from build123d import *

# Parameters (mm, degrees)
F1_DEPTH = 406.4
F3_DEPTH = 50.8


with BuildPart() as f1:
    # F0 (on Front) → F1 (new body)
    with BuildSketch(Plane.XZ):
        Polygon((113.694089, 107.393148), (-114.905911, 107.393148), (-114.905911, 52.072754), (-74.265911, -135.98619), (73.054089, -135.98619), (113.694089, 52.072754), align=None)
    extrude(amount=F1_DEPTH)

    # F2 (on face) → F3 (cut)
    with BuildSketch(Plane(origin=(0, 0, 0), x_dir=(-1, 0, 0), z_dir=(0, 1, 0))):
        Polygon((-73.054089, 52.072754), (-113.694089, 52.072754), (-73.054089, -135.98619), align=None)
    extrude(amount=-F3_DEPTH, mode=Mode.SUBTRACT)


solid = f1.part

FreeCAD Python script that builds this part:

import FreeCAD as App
import Part
import Sketcher

V = App.Vector
Q = App.Units.Quantity

doc = App.newDocument("Part")
params = doc.addObject("Spreadsheet::Sheet", "Params")
for row, (alias, value) in enumerate([
    ("sketch1_width", "9 in"),
    ("sketch1_width2", "5.8 in"),
    ("pad1_length", "16 in"),
    ("sketch2_width", "1.6 in"),
    ("pocket1_length", "2 in"),
], start=1):
    params.set(f"A{row}", alias)
    params.set(f"B{row}", "=" + value)
    params.setAlias(f"B{row}", alias)

body = doc.addObject("PartDesign::Body", "Body")

sketch1 = body.newObject("Sketcher::SketchObject", "Sketch")
sketch1.AttachmentSupport = (doc.getObject("XZ_Plane"), [""])
sketch1.MapMode = "FlatFace"
sketch1.addGeometry([
    Part.LineSegment(V(113.694089, 107.393148, 0), V(-114.905911, 107.393148, 0)),
    Part.LineSegment(V(-114.905911, 107.393148, 0), V(-114.905911, 52.072754, 0)),
    Part.LineSegment(V(-114.905911, 52.072754, 0), V(-74.265911, -135.98619, 0)),
    Part.LineSegment(V(-74.265911, -135.98619, 0), V(73.054089, -135.98619, 0)),
    Part.LineSegment(V(73.054089, -135.98619, 0), V(113.694089, 52.072754, 0)),
    Part.LineSegment(V(113.694089, 52.072754, 0), V(113.694089, 107.393148, 0)),
], False)
sketch1.addConstraint([
    Sketcher.Constraint("Coincident", 0, 2, 1, 1),
    Sketcher.Constraint("Coincident", 1, 2, 2, 1),
    Sketcher.Constraint("Coincident", 2, 2, 3, 1),
    Sketcher.Constraint("Coincident", 3, 2, 4, 1),
    Sketcher.Constraint("Coincident", 4, 2, 5, 1),
    Sketcher.Constraint("Coincident", 5, 2, 0, 1),
    Sketcher.Constraint("Horizontal", 0),
    Sketcher.Constraint("Vertical", 1),
    Sketcher.Constraint("Horizontal", 3),
    Sketcher.Constraint("Vertical", 5),
    Sketcher.Constraint("Horizontal", 1, 2, 4, 2),
    Sketcher.Constraint("Equal", 2, 4),
    Sketcher.Constraint("DistanceX", 0, 2, 0, 1, Q("9 in")),
    Sketcher.Constraint("DistanceX", 3, 1, 3, 2, Q("5.8 in")),
    Sketcher.Constraint("Distance", 2, 192.400042),
    Sketcher.Constraint("DistanceY", 1, 2, 1, 1, 55.320394),
    Sketcher.Constraint("DistanceX", 0, 2, -1, 1, 114.905911),
    Sketcher.Constraint("DistanceY", 2, 2, -1, 1, 135.98619),
])
sketch1.setExpression("Constraints[12]", "Params.sketch1_width")
sketch1.setExpression("Constraints[13]", "Params.sketch1_width2")
pad1 = body.newObject("PartDesign::Pad", "Pad")
pad1.Profile = sketch1
pad1.setExpression("Length", "Params.pad1_length")

sketch2 = body.newObject("Sketcher::SketchObject", "Sketch001")
sketch2.AttachmentSupport = (doc.getObject("XZ_Plane"), [""])
sketch2.MapMode = "FlatFace"
sketch2.addGeometry([
    Part.LineSegment(V(73.054089, 52.072754, 0), V(113.694089, 52.072754, 0)),
    Part.LineSegment(V(113.694089, 52.072754, 0), V(73.054089, -135.98619, 0)),
    Part.LineSegment(V(73.054089, -135.98619, 0), V(73.054089, 52.072754, 0)),
], False)
sketch2.addConstraint([
    Sketcher.Constraint("Coincident", 0, 2, 1, 1),
    Sketcher.Constraint("Coincident", 1, 2, 2, 1),
    Sketcher.Constraint("Coincident", 2, 2, 0, 1),
    Sketcher.Constraint("Horizontal", 0),
    Sketcher.Constraint("Vertical", 2),
    Sketcher.Constraint("DistanceX", 0, 1, 0, 2, Q("1.6 in")),
    Sketcher.Constraint("Distance", 1, 192.400042),
    Sketcher.Constraint("DistanceX", -1, 1, 0, 2, 113.694089),
    Sketcher.Constraint("DistanceY", 1, 2, -1, 1, 135.98619),
])
sketch2.setExpression("Constraints[5]", "Params.sketch2_width")
pocket1 = body.newObject("PartDesign::Pocket", "Pocket")
pocket1.Profile = sketch2
pocket1.setExpression("Length", "Params.pocket1_length")
pocket1.Reversed = True

doc.recompute()
